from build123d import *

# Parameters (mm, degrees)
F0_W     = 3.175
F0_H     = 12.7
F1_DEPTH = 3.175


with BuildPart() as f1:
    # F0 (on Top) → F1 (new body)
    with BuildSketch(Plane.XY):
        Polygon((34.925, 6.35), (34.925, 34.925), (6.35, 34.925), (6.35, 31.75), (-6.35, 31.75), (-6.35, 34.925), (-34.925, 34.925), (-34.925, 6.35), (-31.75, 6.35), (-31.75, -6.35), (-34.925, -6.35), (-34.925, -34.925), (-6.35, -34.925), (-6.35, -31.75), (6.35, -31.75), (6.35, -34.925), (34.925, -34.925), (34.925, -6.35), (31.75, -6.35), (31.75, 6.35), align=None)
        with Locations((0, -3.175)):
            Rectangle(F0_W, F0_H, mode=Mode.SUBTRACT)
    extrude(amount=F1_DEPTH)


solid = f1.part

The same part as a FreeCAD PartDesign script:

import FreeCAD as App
import Part
import Sketcher
from FreeCAD import Vector
Q = App.Units.Quantity


def add_polygon(sketch, points):
    """Adds a closed chain of lines whose ends are joined by coincident constraints."""
    first, n = sketch.GeometryCount, len(points)
    for a, b in zip(points, points[1:] + points[:1]):
        sketch.addGeometry(Part.LineSegment(App.Vector(*a, 0), App.Vector(*b, 0)), False)
    for i in range(n):
        sketch.addConstraint(Sketcher.Constraint("Coincident", first + i, 2, first + (i + 1) % n, 1))

doc = App.newDocument("Part")
body = doc.addObject("PartDesign::Body", "Body")

# Sketch on XY plane
sketch1 = body.newObject("Sketcher::SketchObject", "Sketch")
sketch1.AttachmentSupport = (doc.getObject("XY_Plane"), [""])
sketch1.MapMode = "FlatFace"
add_polygon(sketch1, [(34.9, 6.3), (34.9, 34.9), (6.3, 34.9), (6.3, 31.8), (-6.3, 31.8), (-6.3, 34.9), (-34.9, 34.9), (-34.9, 6.3), (-31.8, 6.3), (-31.8, -6.3), (-34.9, -6.3), (-34.9, -34.9), (-6.3, -34.9), (-6.3, -31.8), (6.3, -31.8), (6.3, -34.9), (34.9, -34.9), (34.9, -6.3), (31.8, -6.3), (31.8, 6.3)])  # lines 0-19
add_polygon(sketch1, [(1.6, -9.5), (-1.6, -9.5), (-1.6, 3.2), (1.6, 3.2)])  # lines 20-23
sketch1.addConstraint([
    Sketcher.Constraint("Vertical", 0),
    Sketcher.Constraint("Horizontal", 1),
    Sketcher.Constraint("Vertical", 2),
    Sketcher.Constraint("Horizontal", 3),
    Sketcher.Constraint("Vertical", 4),
    Sketcher.Constraint("Horizontal", 5),
    Sketcher.Constraint("Vertical", 6),
    Sketcher.Constraint("Horizontal", 7),
    Sketcher.Constraint("Vertical", 8),
    Sketcher.Constraint("Horizontal", 9),
    Sketcher.Constraint("Vertical", 10),
    Sketcher.Constraint("Horizontal", 11),
    Sketcher.Constraint("Vertical", 12),
    Sketcher.Constraint("Horizontal", 13),
    Sketcher.Constraint("Vertical", 14),
    Sketcher.Constraint("Horizontal", 15),
    Sketcher.Constraint("Vertical", 16),
    Sketcher.Constraint("Horizontal", 17),
    Sketcher.Constraint("Vertical", 18),
    Sketcher.Constraint("Horizontal", 19),
    Sketcher.Constraint("Horizontal", 20),
    Sketcher.Constraint("Vertical", 21),
    Sketcher.Constraint("Horizontal", 22),
    Sketcher.Constraint("Vertical", 23),
    Sketcher.Constraint("Symmetric", 0, 2, 10, 2, -1, 1),
    Sketcher.Constraint("Symmetric", 2, 2, 12, 2, -1, 1),
    Sketcher.Constraint("Symmetric", 4, 2, 14, 2, -1, 1),
    Sketcher.Constraint("Symmetric", 6, 2, 16, 2, -1, 1),
    Sketcher.Constraint("Symmetric", 8, 2, 18, 2, -1, 1),
    Sketcher.Constraint("Symmetric", 1, 2, 4, 2, -2),
    Sketcher.Constraint("Symmetric", 9, 2, 16, 2, -2),
    Sketcher.Constraint("Equal", 19, 20),
    Sketcher.Constraint("Equal", 15, 0),
    Sketcher.Constraint("Equal", 22, 2),
    Sketcher.Constraint("Equal", 13, 8),
    Sketcher.Constraint("Equal", 18, 21),
    Sketcher.Constraint("DistanceX", 3, 2, 3, 1, Q("0.5 in")),
    Sketcher.Constraint("DistanceY", 6, 2, 3, 2, Q("1 in")),
    Sketcher.Constraint("DistanceY", 11, 2, 20, 2, Q("1 in")),
    Sketcher.Constraint("DistanceX", 1, 2, 1, 1, Q("1.125 in")),
    Sketcher.Constraint("DistanceX", 20, 2, -1, 1, Q("0.0625 in")),
])
pad1 = body.newObject("PartDesign::Pad", "Pad")
pad1.Profile = sketch1
pad1.Length = Q("0.125 in")

doc.recompute()
